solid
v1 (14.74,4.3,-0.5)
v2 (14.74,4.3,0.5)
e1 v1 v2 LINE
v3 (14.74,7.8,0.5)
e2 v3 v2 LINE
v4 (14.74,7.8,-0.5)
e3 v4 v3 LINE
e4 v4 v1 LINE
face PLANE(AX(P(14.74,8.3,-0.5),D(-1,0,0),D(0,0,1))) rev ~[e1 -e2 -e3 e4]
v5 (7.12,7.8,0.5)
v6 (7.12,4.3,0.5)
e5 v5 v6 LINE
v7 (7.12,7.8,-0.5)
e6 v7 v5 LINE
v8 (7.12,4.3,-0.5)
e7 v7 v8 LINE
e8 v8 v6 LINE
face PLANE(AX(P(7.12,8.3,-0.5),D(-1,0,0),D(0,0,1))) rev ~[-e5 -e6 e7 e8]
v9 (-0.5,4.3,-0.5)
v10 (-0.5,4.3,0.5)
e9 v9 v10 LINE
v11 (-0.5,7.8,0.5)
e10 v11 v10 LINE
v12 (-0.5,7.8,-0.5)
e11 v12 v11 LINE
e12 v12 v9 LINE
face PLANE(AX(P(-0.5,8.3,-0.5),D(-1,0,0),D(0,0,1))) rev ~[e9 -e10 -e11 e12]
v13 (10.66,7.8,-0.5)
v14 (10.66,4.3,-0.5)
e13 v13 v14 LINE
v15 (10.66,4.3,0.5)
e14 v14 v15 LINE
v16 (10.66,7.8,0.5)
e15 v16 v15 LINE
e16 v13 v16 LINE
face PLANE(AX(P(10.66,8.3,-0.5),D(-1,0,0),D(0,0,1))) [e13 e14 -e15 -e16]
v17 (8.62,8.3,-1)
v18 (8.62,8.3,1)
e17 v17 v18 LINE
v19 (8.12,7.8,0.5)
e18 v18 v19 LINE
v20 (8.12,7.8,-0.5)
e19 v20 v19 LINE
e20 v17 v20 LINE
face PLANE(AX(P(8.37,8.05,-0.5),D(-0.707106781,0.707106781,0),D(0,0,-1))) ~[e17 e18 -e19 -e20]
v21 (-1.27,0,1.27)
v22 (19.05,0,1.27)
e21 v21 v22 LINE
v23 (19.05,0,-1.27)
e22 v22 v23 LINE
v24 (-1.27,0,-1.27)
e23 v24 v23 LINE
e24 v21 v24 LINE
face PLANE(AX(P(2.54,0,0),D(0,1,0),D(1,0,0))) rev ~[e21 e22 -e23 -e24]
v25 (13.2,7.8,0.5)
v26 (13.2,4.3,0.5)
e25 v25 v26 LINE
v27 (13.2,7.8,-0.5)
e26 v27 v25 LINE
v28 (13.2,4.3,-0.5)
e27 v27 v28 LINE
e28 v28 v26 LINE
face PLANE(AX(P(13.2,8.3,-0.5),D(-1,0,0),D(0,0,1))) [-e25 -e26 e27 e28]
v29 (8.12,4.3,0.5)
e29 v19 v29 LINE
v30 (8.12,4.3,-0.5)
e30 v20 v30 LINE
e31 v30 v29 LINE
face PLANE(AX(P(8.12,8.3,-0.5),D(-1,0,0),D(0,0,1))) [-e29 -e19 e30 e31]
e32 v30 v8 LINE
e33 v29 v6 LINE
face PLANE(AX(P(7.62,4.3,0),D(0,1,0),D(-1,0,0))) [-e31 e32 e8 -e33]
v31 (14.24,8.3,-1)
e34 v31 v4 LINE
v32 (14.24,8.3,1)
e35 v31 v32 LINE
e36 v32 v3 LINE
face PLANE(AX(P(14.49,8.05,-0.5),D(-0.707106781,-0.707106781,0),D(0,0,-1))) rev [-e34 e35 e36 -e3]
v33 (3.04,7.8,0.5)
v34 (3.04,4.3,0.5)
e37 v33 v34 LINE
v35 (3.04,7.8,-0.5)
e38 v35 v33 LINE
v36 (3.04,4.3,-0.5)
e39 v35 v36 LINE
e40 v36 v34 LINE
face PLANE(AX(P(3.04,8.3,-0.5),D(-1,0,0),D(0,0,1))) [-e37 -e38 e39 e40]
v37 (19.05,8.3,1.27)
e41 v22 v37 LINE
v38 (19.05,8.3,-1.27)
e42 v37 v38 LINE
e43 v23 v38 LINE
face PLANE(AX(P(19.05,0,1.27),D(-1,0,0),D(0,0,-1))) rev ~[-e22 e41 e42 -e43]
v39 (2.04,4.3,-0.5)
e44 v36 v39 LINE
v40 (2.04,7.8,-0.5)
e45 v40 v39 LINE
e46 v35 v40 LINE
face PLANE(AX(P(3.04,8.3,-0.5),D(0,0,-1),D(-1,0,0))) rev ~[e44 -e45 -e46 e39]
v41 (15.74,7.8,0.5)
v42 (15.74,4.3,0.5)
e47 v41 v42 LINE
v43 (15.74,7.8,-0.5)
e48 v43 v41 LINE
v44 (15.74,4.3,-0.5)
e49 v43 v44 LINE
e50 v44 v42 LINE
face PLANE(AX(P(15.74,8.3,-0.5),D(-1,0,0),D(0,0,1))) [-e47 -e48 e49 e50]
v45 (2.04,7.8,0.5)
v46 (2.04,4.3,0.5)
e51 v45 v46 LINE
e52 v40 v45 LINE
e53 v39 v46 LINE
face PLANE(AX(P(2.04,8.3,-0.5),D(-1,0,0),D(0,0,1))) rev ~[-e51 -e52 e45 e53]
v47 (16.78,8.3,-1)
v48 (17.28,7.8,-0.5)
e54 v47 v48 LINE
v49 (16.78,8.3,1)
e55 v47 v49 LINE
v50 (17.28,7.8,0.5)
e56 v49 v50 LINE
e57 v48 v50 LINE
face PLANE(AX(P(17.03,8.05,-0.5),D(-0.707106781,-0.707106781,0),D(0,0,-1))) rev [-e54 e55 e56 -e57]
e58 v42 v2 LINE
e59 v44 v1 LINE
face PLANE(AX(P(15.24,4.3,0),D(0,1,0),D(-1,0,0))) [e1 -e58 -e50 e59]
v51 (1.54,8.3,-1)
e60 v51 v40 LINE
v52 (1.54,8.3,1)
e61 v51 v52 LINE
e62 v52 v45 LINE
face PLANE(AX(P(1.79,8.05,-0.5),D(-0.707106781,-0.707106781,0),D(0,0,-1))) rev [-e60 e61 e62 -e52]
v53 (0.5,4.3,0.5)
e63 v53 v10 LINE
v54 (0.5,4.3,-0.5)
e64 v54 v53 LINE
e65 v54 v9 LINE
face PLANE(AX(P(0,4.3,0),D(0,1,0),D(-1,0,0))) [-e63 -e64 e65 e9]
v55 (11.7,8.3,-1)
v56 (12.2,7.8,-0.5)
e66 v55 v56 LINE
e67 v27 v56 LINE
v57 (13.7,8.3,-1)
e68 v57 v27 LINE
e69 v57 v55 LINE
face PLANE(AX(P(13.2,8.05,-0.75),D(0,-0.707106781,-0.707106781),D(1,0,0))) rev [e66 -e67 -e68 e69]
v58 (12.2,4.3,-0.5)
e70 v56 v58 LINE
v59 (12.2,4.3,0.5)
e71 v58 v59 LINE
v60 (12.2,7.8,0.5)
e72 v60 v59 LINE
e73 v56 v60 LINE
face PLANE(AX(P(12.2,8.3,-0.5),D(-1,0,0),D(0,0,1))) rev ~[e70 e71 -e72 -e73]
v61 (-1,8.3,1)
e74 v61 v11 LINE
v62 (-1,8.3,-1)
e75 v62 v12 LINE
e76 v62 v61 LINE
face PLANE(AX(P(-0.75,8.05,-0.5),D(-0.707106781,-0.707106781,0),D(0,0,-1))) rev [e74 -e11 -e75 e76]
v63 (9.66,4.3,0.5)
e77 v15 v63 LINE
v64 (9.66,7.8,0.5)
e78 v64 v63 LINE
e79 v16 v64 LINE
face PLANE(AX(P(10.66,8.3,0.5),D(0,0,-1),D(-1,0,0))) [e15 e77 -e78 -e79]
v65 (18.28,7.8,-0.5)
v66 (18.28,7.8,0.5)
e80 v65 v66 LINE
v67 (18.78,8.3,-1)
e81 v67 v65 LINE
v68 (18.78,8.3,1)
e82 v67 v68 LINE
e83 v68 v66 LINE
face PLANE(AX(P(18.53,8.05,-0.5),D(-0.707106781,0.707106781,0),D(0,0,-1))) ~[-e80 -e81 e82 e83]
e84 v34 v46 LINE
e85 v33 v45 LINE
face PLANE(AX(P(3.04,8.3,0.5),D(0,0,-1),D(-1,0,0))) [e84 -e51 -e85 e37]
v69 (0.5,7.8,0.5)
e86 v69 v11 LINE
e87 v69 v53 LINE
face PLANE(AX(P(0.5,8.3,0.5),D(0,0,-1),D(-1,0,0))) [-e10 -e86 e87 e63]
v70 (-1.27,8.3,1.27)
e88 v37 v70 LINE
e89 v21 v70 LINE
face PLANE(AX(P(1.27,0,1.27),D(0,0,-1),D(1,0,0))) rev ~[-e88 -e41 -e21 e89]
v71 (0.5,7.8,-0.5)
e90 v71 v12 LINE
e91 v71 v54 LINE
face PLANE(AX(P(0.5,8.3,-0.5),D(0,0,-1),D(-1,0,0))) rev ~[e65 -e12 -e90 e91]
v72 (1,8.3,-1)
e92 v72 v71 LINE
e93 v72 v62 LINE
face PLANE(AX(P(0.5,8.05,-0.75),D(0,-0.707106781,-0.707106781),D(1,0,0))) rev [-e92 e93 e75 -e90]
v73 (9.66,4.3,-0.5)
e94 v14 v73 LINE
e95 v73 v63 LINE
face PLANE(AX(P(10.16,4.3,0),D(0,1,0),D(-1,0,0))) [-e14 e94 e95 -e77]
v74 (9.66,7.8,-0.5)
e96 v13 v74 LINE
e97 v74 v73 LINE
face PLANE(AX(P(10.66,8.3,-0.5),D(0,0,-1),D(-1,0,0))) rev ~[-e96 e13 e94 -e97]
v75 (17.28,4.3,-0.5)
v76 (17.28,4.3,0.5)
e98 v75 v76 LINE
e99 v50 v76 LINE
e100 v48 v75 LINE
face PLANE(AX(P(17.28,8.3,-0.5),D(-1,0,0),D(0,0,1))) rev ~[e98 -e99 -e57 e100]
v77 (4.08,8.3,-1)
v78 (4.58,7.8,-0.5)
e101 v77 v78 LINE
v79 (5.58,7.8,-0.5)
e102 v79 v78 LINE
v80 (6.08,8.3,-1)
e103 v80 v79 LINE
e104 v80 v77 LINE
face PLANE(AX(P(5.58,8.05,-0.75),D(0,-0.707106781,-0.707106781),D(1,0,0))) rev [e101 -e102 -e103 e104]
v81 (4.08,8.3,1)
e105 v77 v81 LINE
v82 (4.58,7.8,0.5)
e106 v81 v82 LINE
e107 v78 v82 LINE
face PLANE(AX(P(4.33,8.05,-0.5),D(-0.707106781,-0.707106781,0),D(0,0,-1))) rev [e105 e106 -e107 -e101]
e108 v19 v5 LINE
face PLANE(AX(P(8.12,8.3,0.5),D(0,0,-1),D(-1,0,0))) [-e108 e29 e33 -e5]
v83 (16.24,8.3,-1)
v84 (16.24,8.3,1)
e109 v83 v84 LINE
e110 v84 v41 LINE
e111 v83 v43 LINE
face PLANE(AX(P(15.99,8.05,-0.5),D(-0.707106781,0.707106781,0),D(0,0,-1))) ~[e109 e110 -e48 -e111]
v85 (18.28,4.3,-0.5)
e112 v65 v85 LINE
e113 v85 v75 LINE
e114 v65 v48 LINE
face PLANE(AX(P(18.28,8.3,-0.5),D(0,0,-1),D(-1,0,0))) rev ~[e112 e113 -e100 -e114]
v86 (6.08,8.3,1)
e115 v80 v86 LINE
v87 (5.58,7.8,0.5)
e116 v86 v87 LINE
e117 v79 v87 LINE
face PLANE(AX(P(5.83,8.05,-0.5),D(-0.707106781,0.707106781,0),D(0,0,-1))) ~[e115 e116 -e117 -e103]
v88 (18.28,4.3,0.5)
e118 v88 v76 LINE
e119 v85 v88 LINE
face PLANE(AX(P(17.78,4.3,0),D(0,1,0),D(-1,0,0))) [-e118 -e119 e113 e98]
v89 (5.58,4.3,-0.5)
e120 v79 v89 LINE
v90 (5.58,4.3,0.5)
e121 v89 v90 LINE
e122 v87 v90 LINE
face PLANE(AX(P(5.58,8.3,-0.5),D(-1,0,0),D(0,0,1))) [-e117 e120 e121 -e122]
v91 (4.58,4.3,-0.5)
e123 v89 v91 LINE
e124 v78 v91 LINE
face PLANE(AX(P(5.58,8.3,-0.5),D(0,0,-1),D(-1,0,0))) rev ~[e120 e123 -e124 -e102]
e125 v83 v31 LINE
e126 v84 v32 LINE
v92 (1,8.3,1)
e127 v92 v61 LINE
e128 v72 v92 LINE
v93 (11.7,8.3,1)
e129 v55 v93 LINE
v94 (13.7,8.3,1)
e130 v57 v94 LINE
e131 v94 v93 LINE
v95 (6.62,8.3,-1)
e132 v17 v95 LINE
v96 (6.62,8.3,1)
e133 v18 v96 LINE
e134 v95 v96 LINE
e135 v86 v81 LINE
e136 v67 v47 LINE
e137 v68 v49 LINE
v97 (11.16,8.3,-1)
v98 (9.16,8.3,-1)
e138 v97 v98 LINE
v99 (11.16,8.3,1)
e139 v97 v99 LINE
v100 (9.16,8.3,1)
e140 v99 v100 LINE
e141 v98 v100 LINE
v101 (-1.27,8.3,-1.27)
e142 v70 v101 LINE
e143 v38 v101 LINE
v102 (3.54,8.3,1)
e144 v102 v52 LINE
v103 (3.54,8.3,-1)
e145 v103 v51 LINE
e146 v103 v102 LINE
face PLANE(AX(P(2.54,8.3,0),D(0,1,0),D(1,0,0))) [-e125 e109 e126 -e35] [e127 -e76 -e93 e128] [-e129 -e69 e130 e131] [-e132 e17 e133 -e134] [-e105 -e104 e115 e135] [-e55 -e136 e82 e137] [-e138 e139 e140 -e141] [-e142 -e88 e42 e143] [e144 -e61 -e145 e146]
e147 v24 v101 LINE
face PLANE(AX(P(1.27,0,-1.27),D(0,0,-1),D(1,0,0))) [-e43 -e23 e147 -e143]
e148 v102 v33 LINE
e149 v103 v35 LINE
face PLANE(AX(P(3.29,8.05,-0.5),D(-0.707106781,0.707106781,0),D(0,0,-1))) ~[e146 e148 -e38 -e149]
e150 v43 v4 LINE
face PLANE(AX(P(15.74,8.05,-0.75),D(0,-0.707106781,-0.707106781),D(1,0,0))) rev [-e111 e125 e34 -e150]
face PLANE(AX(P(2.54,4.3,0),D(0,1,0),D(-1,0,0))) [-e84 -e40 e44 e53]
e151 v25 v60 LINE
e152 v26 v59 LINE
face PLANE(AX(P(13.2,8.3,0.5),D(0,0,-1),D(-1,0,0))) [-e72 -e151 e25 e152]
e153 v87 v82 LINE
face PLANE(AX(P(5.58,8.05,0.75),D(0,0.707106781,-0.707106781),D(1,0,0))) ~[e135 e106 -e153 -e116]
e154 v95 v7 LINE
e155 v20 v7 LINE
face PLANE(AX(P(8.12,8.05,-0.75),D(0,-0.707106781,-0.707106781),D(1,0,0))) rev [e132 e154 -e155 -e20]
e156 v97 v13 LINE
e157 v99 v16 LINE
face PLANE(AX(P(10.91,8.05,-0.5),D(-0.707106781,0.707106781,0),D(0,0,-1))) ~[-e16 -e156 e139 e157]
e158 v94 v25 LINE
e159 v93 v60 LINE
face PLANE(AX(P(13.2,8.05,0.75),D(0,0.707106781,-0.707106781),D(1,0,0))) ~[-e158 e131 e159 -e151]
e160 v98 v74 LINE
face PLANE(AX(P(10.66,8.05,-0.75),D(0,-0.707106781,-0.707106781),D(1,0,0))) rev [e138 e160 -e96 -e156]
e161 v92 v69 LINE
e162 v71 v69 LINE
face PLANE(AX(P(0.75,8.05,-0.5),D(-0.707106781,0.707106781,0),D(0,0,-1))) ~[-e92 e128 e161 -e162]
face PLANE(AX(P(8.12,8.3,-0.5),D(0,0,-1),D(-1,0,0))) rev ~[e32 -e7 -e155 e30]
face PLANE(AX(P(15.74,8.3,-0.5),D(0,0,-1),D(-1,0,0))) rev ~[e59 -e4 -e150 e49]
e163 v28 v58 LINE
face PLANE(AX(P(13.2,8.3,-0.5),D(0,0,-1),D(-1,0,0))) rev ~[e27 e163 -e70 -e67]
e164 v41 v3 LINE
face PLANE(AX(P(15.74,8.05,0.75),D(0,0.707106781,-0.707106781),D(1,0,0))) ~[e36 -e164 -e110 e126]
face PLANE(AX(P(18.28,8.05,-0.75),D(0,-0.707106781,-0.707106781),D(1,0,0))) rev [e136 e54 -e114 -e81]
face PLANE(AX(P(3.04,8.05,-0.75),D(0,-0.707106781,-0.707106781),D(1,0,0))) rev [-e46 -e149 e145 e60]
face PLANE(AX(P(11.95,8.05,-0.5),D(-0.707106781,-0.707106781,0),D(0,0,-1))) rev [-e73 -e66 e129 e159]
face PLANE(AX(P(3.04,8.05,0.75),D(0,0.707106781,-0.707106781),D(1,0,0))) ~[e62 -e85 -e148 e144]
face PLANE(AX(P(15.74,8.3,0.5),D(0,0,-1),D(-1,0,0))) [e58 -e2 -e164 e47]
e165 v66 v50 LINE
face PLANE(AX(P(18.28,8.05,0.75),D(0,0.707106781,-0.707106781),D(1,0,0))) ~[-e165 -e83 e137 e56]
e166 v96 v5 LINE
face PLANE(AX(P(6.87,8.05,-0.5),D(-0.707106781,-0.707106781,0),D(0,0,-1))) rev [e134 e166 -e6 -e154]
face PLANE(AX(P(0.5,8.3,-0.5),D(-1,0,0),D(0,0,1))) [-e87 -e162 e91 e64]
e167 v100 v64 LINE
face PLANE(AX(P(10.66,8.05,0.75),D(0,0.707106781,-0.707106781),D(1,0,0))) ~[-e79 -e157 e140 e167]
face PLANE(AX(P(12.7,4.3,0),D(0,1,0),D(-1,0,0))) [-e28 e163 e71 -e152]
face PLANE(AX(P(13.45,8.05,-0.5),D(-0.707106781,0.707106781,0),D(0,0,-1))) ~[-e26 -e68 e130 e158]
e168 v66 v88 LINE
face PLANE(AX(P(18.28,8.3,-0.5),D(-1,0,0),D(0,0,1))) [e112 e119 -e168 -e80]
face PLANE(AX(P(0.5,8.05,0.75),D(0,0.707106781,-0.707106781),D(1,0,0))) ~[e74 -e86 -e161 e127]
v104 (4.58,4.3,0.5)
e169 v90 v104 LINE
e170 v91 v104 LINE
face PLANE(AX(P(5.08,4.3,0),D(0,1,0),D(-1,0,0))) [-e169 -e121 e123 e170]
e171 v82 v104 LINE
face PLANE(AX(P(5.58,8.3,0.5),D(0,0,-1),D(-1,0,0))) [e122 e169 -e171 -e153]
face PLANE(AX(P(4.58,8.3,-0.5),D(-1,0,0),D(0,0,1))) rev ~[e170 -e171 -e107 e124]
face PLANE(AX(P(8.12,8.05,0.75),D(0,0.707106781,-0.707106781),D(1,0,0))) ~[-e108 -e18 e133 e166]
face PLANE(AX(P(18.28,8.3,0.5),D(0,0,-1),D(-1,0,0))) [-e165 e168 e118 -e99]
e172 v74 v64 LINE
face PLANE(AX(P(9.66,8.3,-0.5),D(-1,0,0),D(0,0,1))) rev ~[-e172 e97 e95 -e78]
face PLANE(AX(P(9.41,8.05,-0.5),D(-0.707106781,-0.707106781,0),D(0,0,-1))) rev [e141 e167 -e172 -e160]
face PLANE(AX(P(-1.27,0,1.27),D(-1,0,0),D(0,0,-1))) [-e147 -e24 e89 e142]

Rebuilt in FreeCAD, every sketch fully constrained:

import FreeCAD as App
import Part
import Sketcher
Q = App.Units.Quantity


def edges_at(feature, points):
    """Names of the edges that pass closest to the given points."""
    edges = feature.Shape.Edges
    near = lambda p: min(range(len(edges)), key=lambda i: edges[i].distToShape(Part.Vertex(*p))[0])
    return sorted({f"Edge{near(p) + 1}" for p in points})

doc = App.newDocument("Part")
params = doc.addObject("Spreadsheet::Sheet", "Params")
for row, (alias, value) in enumerate([
    ("sketch1_width", "2.54 mm"),
    ("pad1_length", "8.3 mm"),
    ("sketch2_width", "1 mm"),
    ("pocket1_length", "4 mm"),
    ("chamfer_size", "0.5 mm"),
    ("linearpattern_pitch", "2.54 mm"),
    ("chamfer2_size", "0.5 mm"),
], start=1):
    params.set(f"A{row}", alias)
    params.set(f"B{row}", "=" + value)
    params.setAlias(f"B{row}", alias)

body = doc.addObject("PartDesign::Body", "Body")

sketch1 = body.newObject("Sketcher::SketchObject", "Sketch")
sketch1.AttachmentSupport = (doc.getObject("XZ_Plane"), [""])
sketch1.MapMode = "FlatFace"
sketch1.addGeometry([
    Part.LineSegment(App.Vector(-1.27, -1.27, 0), App.Vector(-1.27, 1.27, 0)),
    Part.LineSegment(App.Vector(-1.27, 1.27, 0), App.Vector(1.27, 1.27, 0)),
    Part.LineSegment(App.Vector(1.27, 1.27, 0), App.Vector(1.27, -1.27, 0)),
    Part.LineSegment(App.Vector(1.27, -1.27, 0), App.Vector(-1.27, -1.27, 0)),
], False)
sketch1.addConstraint([
    Sketcher.Constraint("Coincident", 0, 2, 1, 1),
    Sketcher.Constraint("Coincident", 1, 2, 2, 1),
    Sketcher.Constraint("Coincident", 2, 2, 3, 1),
    Sketcher.Constraint("Coincident", 3, 2, 0, 1),
    Sketcher.Constraint("Vertical", 0),
    Sketcher.Constraint("Horizontal", 1),
    Sketcher.Constraint("Vertical", 2),
    Sketcher.Constraint("Horizontal", 3),
    Sketcher.Constraint("Symmetric", 0, 2, 2, 2, -1, 1),
    Sketcher.Constraint("Equal", 3, 0),
    Sketcher.Constraint("DistanceX", 1, 1, 1, 2, Q("2.54 mm")),
])
sketch1.setExpression("Constraints[10]", "Params.sketch1_width")
pad1 = body.newObject("PartDesign::Pad", "Pad")
pad1.Profile = sketch1
pad1.setExpression("Length", "Params.pad1_length")
pad1.Reversed = True

sketch2 = body.newObject("Sketcher::SketchObject", "Sketch001")
sketch2.AttachmentSupport = (doc.getObject("XZ_Plane"), [""])
sketch2.MapMode = "FlatFace"
sketch2.AttachmentOffset = App.Placement(App.Vector(0, 0, -8.3), App.Rotation())
sketch2.addGeometry([
    Part.LineSegment(App.Vector(0.5, 0.5, 0), App.Vector(0.5, -0.5, 0)),
    Part.LineSegment(App.Vector(0.5, -0.5, 0), App.Vector(-0.5, -0.5, 0)),
    Part.LineSegment(App.Vector(-0.5, -0.5, 0), App.Vector(-0.5, 0.5, 0)),
    Part.LineSegment(App.Vector(-0.5, 0.5, 0), App.Vector(0.5, 0.5, 0)),
], False)
sketch2.addConstraint([
    Sketcher.Constraint("Coincident", 0, 2, 1, 1),
    Sketcher.Constraint("Coincident", 1, 2, 2, 1),
    Sketcher.Constraint("Coincident", 2, 2, 3, 1),
    Sketcher.Constraint("Coincident", 3, 2, 0, 1),
    Sketcher.Constraint("Vertical", 0),
    Sketcher.Constraint("Horizontal", 1),
    Sketcher.Constraint("Vertical", 2),
    Sketcher.Constraint("Horizontal", 3),
    Sketcher.Constraint("Symmetric", 0, 2, 2, 2, -1, 1),
    Sketcher.Constraint("Equal", 3, 0),
    Sketcher.Constraint("DistanceX", 1, 2, 1, 1, Q("1 mm")),
])
sketch2.setExpression("Constraints[10]", "Params.sketch2_width")
pocket1 = body.newObject("PartDesign::Pocket", "Pocket")
pocket1.Profile = sketch2
pocket1.setExpression("Length", "Params.pocket1_length")
pocket1.Reversed = True
doc.recompute()

chamfer = body.newObject("PartDesign::Chamfer", "Chamfer")
chamfer.Base = (pocket1, edges_at(pocket1, [
    (0, 8.3, 0.5),
    (0.5, 8.3, 0),
    (0, 8.3, -0.5),
    (-0.5, 8.3, 0),
]))
chamfer.setExpression("Size", "Params.chamfer_size")
doc.recompute()

linearpattern = body.newObject("PartDesign::LinearPattern", "LinearPattern")
linearpattern.Originals = [pad1, pocket1]
linearpattern.Direction = (doc.getObject("X_Axis"), [""])
linearpattern.Mode = "offset"
linearpattern.setExpression("Offset", "Params.linearpattern_pitch")
linearpattern.Occurrences = 8
body.Tip = linearpattern
doc.recompute()

chamfer2 = body.newObject("PartDesign::Chamfer", "Chamfer001")
chamfer2.Base = (linearpattern, edges_at(linearpattern, [
    (2.54, 8.3, 0.5),
    (3.04, 8.3, 0),
    (2.54, 8.3, -0.5),
    (2.04, 8.3, 0),
    (5.08, 8.3, 0.5),
    (5.58, 8.3, 0),
    (5.08, 8.3, -0.5),
    (4.58, 8.3, 0),
    (7.62, 8.3, 0.5),
    (8.12, 8.3, 0),
    (7.62, 8.3, -0.5),
    (7.12, 8.3, 0),
    (10.16, 8.3, 0.5),
    (10.66, 8.3, 0),
    (10.16, 8.3, -0.5),
    (9.66, 8.3, 0),
    (12.7, 8.3, 0.5),
    (13.2, 8.3, 0),
    (12.7, 8.3, -0.5),
    (12.2, 8.3, 0),
    (15.24, 8.3, 0.5),
    (15.74, 8.3, 0),
    (15.24, 8.3, -0.5),
    (14.74, 8.3, 0),
    (17.78, 8.3, 0.5),
    (18.28, 8.3, 0),
    (17.78, 8.3, -0.5),
    (17.28, 8.3, 0),
]))
chamfer2.setExpression("Size", "Params.chamfer2_size")

doc.recompute()
